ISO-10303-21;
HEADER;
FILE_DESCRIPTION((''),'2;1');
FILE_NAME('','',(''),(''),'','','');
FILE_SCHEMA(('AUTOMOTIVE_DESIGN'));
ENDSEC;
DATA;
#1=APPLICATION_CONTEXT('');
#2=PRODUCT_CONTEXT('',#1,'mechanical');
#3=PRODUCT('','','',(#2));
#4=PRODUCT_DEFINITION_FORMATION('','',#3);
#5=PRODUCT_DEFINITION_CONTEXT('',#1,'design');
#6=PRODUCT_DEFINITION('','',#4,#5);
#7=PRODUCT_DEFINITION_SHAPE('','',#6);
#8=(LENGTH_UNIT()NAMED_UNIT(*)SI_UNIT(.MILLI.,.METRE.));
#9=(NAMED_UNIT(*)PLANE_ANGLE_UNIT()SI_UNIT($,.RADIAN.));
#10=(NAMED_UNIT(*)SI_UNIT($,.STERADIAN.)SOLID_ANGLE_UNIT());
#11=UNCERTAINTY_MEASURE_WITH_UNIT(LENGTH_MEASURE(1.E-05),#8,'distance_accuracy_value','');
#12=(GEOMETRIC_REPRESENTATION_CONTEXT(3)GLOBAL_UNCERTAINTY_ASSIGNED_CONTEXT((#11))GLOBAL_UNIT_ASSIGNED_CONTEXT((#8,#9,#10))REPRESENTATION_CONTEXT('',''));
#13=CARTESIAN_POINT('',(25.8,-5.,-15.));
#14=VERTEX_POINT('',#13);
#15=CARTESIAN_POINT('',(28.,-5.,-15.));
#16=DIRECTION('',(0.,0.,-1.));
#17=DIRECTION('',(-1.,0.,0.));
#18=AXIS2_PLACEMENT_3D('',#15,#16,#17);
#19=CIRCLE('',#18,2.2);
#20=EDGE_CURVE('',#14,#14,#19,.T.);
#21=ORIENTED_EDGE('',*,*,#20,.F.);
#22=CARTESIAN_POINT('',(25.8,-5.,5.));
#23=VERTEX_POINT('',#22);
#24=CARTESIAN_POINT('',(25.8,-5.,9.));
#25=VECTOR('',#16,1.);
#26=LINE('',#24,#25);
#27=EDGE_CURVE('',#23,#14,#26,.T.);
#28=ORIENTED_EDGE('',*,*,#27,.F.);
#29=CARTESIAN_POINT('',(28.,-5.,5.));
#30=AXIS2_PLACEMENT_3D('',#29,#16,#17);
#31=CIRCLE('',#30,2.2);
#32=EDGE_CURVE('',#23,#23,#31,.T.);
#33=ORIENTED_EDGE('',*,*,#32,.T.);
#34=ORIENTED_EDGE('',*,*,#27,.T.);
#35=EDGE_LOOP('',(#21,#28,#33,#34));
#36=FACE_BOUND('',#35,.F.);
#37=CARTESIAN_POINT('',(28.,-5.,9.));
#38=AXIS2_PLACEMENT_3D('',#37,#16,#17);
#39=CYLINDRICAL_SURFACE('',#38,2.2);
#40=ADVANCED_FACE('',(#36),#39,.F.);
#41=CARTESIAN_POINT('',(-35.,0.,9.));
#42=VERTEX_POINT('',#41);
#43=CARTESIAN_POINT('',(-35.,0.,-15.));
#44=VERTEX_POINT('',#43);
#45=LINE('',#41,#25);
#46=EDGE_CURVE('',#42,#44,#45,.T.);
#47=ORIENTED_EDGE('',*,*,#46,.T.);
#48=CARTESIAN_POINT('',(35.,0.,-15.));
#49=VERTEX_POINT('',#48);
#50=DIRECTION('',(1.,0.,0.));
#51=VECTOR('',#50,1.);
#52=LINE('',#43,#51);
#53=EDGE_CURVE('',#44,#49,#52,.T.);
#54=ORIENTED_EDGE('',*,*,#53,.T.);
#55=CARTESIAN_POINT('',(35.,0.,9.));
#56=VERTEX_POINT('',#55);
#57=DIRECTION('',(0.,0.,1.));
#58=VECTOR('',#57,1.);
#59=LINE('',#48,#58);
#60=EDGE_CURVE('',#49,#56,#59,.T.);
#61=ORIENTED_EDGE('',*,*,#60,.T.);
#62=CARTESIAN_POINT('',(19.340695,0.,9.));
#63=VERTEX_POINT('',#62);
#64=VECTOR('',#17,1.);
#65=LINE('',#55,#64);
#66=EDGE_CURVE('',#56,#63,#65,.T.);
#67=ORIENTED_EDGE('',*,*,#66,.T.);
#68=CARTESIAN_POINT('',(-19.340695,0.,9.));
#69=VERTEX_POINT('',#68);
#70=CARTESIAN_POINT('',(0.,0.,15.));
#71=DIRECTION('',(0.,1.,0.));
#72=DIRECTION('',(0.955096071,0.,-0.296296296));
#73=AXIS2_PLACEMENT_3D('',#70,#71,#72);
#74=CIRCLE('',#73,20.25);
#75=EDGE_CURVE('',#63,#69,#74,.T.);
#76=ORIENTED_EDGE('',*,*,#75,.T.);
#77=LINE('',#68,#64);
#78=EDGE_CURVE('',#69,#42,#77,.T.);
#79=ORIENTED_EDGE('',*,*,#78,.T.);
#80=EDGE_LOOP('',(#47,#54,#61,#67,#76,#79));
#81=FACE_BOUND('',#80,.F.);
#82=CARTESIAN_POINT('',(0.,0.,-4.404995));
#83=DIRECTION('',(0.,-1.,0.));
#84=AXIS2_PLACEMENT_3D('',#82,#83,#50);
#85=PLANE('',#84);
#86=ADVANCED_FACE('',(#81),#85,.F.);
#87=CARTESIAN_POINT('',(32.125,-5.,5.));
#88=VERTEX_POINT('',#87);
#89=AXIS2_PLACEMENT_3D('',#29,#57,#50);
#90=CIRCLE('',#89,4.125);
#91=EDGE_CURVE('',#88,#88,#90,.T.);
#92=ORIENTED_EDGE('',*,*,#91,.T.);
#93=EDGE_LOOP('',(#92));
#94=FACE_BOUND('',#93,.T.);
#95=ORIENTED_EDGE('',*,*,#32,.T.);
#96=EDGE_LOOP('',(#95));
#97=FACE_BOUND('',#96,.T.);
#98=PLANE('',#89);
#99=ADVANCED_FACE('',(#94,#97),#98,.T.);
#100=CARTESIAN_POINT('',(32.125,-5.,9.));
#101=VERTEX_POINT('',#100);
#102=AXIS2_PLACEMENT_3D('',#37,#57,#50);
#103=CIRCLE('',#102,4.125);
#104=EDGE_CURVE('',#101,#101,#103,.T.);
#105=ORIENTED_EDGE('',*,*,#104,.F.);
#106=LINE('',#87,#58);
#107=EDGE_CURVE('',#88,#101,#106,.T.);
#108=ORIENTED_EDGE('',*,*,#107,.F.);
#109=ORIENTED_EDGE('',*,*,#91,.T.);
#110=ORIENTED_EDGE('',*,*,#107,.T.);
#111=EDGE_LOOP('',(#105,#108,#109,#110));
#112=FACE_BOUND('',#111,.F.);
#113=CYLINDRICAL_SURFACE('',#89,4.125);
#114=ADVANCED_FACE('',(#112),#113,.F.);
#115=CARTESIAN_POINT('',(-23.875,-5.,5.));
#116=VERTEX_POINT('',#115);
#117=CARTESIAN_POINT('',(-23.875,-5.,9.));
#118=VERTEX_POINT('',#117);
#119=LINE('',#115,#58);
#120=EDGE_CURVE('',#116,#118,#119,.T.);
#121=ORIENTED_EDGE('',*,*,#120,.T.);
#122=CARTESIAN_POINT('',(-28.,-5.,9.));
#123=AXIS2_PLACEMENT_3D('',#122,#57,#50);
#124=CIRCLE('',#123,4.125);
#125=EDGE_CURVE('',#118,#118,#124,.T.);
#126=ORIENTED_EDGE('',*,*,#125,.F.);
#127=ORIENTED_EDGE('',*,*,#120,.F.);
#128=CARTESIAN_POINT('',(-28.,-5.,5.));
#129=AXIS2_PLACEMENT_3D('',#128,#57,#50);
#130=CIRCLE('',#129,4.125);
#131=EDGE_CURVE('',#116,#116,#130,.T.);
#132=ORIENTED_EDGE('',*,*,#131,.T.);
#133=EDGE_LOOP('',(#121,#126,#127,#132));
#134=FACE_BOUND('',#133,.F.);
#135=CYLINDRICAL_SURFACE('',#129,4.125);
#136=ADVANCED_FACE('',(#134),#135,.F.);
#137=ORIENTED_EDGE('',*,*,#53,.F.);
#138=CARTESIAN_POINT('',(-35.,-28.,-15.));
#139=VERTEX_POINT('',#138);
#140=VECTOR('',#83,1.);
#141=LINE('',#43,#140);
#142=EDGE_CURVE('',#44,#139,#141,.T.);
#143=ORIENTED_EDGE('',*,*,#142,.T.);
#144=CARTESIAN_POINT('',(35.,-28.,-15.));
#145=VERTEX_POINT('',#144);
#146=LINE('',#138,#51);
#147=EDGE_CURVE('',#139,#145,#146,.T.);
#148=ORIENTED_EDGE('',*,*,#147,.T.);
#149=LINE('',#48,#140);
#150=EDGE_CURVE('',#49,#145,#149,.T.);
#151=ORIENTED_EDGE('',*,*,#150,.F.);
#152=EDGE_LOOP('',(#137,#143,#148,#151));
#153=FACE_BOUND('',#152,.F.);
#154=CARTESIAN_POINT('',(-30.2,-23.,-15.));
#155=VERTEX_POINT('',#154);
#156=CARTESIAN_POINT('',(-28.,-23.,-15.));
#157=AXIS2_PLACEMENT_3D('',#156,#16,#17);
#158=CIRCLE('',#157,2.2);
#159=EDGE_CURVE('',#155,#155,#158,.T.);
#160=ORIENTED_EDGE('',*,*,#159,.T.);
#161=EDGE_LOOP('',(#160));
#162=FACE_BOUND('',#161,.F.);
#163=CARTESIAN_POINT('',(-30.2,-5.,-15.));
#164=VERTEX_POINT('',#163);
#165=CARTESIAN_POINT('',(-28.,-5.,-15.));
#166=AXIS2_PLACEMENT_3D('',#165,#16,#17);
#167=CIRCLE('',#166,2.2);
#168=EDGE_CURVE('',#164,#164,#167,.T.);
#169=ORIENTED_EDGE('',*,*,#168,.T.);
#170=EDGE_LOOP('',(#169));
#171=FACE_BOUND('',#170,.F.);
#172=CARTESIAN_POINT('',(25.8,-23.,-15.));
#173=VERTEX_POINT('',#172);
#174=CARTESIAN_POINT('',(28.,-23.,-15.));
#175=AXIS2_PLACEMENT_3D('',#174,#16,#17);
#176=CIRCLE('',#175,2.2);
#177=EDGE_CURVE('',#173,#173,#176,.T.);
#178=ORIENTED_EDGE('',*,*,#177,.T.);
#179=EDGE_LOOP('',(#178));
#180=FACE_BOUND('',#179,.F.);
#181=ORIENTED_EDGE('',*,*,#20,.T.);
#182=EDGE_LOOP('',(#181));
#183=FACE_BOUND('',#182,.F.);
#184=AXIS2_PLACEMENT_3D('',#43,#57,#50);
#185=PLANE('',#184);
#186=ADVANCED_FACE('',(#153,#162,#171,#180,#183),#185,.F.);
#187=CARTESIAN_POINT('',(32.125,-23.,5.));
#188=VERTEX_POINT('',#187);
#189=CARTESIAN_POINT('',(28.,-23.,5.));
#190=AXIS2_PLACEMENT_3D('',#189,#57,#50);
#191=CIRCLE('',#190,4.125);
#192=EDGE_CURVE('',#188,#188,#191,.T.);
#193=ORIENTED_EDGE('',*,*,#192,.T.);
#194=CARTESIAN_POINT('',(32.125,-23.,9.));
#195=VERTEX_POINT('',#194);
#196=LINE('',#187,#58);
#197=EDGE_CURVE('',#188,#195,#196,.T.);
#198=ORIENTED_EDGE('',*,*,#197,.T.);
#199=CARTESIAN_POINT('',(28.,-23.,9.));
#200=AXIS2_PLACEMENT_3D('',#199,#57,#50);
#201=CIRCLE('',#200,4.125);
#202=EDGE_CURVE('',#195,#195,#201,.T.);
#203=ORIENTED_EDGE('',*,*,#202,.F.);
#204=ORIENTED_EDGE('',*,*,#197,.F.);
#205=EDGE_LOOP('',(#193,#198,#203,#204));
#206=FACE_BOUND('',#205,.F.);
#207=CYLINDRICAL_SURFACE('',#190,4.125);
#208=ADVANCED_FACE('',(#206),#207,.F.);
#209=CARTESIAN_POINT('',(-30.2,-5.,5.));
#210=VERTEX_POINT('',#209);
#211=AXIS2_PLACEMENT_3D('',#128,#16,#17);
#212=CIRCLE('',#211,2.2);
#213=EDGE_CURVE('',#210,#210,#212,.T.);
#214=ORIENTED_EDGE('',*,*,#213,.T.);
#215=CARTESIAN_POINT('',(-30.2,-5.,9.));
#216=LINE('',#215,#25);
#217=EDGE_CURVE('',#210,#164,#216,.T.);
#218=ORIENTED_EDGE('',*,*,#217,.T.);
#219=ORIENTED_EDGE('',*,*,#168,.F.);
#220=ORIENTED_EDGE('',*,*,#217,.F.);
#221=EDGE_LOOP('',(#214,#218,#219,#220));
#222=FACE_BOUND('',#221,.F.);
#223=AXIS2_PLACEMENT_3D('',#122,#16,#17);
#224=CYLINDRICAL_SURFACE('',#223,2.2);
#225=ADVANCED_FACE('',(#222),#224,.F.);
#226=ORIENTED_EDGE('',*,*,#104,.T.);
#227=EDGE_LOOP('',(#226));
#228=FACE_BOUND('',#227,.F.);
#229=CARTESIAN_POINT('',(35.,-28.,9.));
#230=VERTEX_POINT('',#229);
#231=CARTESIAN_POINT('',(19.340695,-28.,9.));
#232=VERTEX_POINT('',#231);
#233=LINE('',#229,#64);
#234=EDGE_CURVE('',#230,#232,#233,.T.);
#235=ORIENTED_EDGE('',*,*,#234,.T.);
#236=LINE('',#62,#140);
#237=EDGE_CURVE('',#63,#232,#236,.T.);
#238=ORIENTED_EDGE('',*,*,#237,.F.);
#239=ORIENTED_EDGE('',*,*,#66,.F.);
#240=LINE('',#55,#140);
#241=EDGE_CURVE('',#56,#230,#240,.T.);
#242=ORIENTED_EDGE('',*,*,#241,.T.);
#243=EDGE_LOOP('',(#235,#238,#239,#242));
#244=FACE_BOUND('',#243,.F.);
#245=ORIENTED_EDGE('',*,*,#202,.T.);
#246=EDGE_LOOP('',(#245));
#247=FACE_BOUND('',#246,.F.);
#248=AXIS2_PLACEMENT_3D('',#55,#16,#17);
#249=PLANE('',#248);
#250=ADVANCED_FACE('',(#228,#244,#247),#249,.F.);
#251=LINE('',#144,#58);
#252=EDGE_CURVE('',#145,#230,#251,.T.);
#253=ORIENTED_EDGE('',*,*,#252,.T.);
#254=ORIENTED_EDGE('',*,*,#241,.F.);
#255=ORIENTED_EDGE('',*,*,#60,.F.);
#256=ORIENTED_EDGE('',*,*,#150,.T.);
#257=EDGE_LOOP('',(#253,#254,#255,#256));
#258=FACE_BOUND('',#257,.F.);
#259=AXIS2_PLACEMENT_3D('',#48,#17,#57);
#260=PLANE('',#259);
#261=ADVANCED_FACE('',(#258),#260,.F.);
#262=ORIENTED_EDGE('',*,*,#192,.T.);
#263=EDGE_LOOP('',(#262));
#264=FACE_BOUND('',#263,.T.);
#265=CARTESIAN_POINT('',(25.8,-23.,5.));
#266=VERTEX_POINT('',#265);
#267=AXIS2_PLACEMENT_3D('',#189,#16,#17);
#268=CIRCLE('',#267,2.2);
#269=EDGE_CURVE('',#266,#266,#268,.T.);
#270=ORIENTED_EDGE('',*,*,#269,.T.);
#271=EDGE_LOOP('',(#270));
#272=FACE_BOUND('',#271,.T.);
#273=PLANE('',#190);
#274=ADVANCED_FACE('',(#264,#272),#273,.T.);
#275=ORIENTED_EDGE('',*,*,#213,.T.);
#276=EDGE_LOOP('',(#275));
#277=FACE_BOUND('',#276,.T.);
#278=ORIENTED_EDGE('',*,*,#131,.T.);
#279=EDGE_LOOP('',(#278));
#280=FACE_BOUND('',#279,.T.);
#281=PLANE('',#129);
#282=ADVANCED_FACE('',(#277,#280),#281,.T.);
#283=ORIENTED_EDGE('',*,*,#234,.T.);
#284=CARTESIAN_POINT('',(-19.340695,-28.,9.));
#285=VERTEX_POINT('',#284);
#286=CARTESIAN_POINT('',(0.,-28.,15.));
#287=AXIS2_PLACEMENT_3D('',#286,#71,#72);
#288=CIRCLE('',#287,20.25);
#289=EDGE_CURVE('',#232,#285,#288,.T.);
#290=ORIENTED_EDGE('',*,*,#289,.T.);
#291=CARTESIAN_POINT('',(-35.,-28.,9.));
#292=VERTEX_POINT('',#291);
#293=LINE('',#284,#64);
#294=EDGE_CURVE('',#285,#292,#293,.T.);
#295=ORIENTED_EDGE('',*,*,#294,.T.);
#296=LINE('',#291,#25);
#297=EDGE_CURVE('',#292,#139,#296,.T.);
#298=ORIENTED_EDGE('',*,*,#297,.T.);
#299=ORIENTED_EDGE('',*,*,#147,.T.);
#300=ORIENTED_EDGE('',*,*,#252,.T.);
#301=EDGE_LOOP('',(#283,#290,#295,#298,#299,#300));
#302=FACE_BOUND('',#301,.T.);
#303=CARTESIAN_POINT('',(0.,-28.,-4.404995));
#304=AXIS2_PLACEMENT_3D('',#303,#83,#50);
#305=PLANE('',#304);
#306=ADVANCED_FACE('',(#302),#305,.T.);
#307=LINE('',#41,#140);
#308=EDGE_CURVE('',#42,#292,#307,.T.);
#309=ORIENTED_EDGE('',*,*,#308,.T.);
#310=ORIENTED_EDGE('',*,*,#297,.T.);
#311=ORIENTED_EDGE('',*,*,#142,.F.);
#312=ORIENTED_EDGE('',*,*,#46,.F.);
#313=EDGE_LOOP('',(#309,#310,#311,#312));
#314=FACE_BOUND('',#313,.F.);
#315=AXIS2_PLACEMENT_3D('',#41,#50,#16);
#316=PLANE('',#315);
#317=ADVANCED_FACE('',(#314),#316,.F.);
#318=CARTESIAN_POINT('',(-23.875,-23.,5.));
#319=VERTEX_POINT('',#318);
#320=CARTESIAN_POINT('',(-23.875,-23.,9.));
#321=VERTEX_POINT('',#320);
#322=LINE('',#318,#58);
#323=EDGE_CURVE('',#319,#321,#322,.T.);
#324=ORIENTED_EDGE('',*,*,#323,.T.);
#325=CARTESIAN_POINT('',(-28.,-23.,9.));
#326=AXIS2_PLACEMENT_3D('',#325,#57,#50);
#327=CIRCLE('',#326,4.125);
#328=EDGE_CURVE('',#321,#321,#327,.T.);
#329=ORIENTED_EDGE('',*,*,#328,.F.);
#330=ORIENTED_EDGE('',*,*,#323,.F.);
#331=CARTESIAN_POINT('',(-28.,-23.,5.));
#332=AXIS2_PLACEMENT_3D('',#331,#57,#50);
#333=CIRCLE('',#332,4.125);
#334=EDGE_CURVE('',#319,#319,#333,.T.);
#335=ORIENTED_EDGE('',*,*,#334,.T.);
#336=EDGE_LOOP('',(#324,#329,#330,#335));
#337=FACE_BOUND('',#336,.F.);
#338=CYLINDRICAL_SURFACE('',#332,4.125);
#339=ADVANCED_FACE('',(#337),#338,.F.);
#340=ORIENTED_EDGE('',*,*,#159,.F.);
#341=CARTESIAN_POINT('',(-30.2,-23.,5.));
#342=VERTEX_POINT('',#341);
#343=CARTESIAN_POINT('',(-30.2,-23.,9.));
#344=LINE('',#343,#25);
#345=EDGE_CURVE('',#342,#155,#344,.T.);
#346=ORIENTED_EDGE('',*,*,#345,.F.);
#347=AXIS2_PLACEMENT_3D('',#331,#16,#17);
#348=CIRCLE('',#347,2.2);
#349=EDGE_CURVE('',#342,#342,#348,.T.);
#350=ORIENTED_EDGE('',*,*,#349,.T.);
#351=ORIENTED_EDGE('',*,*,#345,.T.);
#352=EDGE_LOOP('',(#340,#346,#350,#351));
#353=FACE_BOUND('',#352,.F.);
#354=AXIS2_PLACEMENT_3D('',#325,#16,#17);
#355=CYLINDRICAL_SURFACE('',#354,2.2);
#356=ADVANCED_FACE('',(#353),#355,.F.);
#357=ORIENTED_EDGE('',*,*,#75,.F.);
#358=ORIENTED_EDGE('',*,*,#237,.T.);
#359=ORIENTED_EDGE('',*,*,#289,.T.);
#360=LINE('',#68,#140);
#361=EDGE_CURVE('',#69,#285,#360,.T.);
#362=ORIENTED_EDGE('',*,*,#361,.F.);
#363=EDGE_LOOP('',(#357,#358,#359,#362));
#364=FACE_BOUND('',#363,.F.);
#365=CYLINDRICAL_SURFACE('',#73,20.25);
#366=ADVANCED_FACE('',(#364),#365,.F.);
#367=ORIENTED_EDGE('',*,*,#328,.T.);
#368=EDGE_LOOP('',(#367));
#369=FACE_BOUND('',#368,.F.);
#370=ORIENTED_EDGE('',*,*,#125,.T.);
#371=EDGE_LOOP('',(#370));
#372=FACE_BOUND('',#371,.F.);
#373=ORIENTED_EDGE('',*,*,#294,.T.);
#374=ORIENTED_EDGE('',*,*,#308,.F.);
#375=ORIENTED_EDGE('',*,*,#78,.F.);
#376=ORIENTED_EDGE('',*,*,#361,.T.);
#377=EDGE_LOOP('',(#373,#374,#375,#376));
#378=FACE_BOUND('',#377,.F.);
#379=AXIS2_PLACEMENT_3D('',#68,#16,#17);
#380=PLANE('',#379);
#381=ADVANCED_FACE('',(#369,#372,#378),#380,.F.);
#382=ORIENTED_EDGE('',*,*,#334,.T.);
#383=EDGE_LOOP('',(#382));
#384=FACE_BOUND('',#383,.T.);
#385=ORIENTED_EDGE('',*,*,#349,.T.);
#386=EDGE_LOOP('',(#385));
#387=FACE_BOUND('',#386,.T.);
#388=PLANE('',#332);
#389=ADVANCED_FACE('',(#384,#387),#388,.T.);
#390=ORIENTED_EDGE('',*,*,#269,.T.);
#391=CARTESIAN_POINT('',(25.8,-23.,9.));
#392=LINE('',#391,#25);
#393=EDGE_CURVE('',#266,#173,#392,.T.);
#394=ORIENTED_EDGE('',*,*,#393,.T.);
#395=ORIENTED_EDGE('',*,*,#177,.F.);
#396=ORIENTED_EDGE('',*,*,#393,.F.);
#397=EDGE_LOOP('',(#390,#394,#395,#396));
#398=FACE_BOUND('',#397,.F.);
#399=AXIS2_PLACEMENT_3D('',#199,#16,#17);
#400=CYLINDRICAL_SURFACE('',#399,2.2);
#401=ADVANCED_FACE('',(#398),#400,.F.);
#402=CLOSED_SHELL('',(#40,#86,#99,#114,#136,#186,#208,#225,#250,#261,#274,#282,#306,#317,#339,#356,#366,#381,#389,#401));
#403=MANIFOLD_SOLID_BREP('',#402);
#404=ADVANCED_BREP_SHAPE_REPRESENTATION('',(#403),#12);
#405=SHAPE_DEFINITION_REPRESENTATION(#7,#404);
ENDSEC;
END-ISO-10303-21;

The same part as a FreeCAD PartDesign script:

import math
import FreeCAD as App
import Part
import Sketcher

doc = App.newDocument("Part")
body = doc.addObject("PartDesign::Body", "Body")

sketch1 = doc.addObject("Sketcher::SketchObject", "Sketch")
body.addObject(sketch1)
sketch1.AttachmentSupport = (doc.XZ_Plane, [""])
sketch1.MapMode = "FlatFace"
sketch1.addGeometry(Part.LineSegment(App.Vector(-35, -15, 0), App.Vector(35, -15, 0)), False)
sketch1.addGeometry(Part.LineSegment(App.Vector(35, -15, 0), App.Vector(35, 9, 0)), False)
sketch1.addGeometry(Part.LineSegment(App.Vector(35, 9, 0), App.Vector(19.340695, 9, 0)), False)
sketch1.addGeometry(Part.ArcOfCircle(Part.Circle(App.Vector(0, 15, 0), App.Vector(0, 0, 1), 20.25), math.radians(-162.764715), math.radians(-17.235285)), False)
sketch1.addGeometry(Part.LineSegment(App.Vector(-19.340695, 9, 0), App.Vector(-35, 9, 0)), False)
sketch1.addGeometry(Part.LineSegment(App.Vector(-35, 9, 0), App.Vector(-35, -15, 0)), False)
sketch1.addConstraint(Sketcher.Constraint("Coincident", 0, 2, 1, 1))
sketch1.addConstraint(Sketcher.Constraint("Coincident", 1, 2, 2, 1))
sketch1.addConstraint(Sketcher.Constraint("Coincident", 2, 2, 3, 2))
sketch1.addConstraint(Sketcher.Constraint("Coincident", 3, 1, 4, 1))
sketch1.addConstraint(Sketcher.Constraint("Coincident", 4, 2, 5, 1))
sketch1.addConstraint(Sketcher.Constraint("Coincident", 5, 2, 0, 1))
sketch1.addConstraint(Sketcher.Constraint("Horizontal", 0))
sketch1.addConstraint(Sketcher.Constraint("Vertical", 1))
sketch1.addConstraint(Sketcher.Constraint("Horizontal", 2))
sketch1.addConstraint(Sketcher.Constraint("Horizontal", 4))
sketch1.addConstraint(Sketcher.Constraint("Vertical", 5))
sketch1.addConstraint(Sketcher.Constraint("Symmetric", 2, 2, 3, 1, -2))
sketch1.addConstraint(Sketcher.Constraint("Equal", 2, 4))
sketch1.addConstraint(Sketcher.Constraint("DistanceX", 0, 1, 0, 2, 70.0))
sketch1.addConstraint(Sketcher.Constraint("DistanceY", 1, 1, 1, 2, 24.0))
sketch1.addConstraint(Sketcher.Constraint("Radius", 3, 20.25))
sketch1.addConstraint(Sketcher.Constraint("DistanceY", -1, 1, 3, 3, 15.0))
sketch1.addConstraint(Sketcher.Constraint("DistanceY", 0, 2, -1, 1, 15.0))
pad1 = doc.addObject("PartDesign::Pad", "Pad")
body.addObject(pad1)
pad1.Profile = sketch1
pad1.Length = 28

sketch2 = doc.addObject("Sketcher::SketchObject", "Sketch001")
body.addObject(sketch2)
sketch2.AttachmentSupport = (doc.XY_Plane, [""])
sketch2.MapMode = "FlatFace"
sketch2.AttachmentOffset = App.Placement(App.Vector(0, 0, 9), App.Rotation())
sketch2.addGeometry(Part.Circle(App.Vector(-28, -5, 0), App.Vector(0, 0, 1), 2.2), False)
sketch2.addGeometry(Part.Circle(App.Vector(-28, -23, 0), App.Vector(0, 0, 1), 2.2), False)
sketch2.addGeometry(Part.Circle(App.Vector(28, -23, 0), App.Vector(0, 0, 1), 2.2), False)
sketch2.addGeometry(Part.Circle(App.Vector(28, -5, 0), App.Vector(0, 0, 1), 2.2), False)
sketch2.addConstraint(Sketcher.Constraint("Equal", 0, 1))
sketch2.addConstraint(Sketcher.Constraint("Equal", 1, 2))
sketch2.addConstraint(Sketcher.Constraint("Equal", 2, 3))
sketch2.addConstraint(Sketcher.Constraint("Symmetric", 1, 3, 2, 3, -2))
sketch2.addConstraint(Sketcher.Constraint("Symmetric", 0, 3, 3, 3, -2))
sketch2.addConstraint(Sketcher.Constraint("Vertical", 0, 3, 1, 3))
sketch2.addConstraint(Sketcher.Constraint("Diameter", 0, 4.4))
sketch2.addConstraint(Sketcher.Constraint("DistanceX", 0, 3, -1, 1, 28.0))
sketch2.addConstraint(Sketcher.Constraint("DistanceY", 0, 3, -1, 1, 5.0))
sketch2.addConstraint(Sketcher.Constraint("DistanceY", 1, 3, -1, 1, 23.0))
doc.recompute()
hole = doc.addObject("PartDesign::Hole", "Hole")
body.addObject(hole)
hole.Profile = sketch2
hole.ThreadType = "None"
hole.Diameter = 4.4
hole.DepthType = "ThroughAll"
hole.HoleCutType = "Counterbore"
hole.HoleCutDiameter = 8.25
hole.HoleCutDepth = 4

doc.recompute()
